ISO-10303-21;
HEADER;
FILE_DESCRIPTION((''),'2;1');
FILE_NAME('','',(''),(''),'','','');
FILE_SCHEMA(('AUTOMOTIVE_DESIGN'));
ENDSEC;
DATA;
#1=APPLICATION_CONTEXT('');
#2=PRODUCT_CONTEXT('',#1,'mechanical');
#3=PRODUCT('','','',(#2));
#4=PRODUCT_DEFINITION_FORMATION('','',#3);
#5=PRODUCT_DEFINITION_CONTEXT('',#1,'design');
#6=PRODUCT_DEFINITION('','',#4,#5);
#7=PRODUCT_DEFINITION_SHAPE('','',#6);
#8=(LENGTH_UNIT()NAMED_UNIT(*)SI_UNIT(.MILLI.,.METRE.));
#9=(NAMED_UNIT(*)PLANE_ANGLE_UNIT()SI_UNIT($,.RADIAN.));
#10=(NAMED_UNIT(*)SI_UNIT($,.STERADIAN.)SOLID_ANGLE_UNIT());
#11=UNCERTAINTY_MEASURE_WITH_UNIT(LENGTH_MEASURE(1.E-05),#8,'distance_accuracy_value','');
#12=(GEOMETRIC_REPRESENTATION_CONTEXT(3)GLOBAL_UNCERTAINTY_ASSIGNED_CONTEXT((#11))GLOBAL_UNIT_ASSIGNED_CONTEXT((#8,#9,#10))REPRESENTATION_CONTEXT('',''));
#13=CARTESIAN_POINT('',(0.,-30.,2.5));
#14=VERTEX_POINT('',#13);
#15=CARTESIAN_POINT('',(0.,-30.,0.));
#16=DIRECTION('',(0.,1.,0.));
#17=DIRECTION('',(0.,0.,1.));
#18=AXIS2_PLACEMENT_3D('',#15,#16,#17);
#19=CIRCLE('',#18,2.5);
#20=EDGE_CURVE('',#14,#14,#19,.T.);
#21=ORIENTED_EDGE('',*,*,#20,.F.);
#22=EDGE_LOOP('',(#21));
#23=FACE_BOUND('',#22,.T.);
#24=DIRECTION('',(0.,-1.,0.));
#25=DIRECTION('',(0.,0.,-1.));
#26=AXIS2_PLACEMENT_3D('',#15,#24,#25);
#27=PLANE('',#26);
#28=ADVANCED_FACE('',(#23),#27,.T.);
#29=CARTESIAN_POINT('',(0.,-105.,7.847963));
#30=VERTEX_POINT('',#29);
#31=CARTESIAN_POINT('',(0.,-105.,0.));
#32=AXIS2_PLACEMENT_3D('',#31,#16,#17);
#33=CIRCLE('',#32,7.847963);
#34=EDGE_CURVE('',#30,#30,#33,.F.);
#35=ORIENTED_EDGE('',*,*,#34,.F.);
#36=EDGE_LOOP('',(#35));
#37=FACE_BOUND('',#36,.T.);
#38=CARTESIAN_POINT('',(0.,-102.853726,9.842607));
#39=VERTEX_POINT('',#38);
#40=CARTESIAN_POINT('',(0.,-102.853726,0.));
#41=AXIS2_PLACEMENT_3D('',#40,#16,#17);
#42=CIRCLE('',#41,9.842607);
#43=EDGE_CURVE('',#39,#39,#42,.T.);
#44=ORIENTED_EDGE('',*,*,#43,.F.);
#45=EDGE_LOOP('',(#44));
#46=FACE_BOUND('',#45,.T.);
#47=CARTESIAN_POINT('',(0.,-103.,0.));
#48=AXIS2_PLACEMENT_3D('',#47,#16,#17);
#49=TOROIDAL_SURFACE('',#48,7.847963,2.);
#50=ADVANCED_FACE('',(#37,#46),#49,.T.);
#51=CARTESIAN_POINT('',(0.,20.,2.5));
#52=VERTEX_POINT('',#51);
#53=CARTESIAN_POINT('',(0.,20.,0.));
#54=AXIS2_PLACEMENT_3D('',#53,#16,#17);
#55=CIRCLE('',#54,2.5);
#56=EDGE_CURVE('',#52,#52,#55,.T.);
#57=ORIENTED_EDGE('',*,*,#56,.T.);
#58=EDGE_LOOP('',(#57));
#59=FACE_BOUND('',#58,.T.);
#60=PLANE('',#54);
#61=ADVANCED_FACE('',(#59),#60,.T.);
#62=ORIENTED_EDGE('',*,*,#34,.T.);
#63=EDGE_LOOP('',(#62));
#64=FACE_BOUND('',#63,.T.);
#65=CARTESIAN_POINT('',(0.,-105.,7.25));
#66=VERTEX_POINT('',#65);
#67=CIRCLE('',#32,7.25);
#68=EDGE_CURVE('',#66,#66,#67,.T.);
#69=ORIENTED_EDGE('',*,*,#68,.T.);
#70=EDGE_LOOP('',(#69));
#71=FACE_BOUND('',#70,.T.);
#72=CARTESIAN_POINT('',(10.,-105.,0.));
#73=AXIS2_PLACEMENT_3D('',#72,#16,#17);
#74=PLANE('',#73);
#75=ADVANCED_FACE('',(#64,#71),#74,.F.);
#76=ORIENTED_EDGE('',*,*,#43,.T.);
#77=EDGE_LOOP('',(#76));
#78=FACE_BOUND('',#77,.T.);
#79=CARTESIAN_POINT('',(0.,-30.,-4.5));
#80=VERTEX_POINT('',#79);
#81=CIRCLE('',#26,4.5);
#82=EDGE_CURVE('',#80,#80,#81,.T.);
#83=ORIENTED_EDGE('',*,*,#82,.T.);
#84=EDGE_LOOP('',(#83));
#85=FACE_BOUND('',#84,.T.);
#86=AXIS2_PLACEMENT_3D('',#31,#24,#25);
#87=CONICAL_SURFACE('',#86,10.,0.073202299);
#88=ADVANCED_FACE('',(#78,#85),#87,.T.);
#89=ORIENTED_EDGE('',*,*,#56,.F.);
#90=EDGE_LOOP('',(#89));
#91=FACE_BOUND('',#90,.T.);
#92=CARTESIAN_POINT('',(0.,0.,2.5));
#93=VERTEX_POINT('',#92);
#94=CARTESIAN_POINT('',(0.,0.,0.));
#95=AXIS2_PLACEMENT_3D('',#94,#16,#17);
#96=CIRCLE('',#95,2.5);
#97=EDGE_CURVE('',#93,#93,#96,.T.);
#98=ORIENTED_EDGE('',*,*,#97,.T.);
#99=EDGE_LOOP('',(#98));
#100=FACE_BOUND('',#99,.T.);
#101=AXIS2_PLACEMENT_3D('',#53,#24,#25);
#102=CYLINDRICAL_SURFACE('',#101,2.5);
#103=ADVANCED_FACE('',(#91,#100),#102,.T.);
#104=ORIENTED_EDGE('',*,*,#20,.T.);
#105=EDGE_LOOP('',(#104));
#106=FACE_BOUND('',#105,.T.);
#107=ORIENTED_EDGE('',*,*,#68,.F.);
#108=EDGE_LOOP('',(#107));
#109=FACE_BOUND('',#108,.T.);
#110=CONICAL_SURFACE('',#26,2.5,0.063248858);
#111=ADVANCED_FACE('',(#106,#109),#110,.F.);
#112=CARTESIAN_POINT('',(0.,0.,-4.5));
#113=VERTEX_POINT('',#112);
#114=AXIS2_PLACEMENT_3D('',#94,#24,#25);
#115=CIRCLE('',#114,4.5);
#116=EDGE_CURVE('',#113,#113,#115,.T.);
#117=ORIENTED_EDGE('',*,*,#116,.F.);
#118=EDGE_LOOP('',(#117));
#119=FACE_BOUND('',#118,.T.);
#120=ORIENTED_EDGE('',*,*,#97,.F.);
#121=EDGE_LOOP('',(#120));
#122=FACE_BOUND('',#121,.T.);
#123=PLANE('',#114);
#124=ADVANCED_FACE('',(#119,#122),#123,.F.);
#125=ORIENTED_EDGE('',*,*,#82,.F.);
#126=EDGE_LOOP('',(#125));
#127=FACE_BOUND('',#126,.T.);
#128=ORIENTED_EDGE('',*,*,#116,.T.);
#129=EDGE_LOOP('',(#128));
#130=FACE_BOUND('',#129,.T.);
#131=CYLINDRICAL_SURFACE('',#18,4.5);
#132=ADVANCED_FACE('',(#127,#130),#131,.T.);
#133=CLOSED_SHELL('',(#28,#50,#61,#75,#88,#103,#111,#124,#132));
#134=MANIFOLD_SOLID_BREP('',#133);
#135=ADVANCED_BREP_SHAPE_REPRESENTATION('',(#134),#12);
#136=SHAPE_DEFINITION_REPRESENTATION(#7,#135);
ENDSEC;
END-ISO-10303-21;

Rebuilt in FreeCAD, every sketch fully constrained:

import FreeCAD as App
import Part
import Sketcher
from FreeCAD import Vector
Q = App.Units.Quantity


def edges_at(feature, points):
    """Names of the edges that pass closest to the given points."""
    edges = feature.Shape.Edges
    near = lambda p: min(range(len(edges)), key=lambda i: edges[i].distToShape(Part.Vertex(*p))[0])
    return sorted({f"Edge{near(p) + 1}" for p in points})


def add_polygon(sketch, points):
    """Adds a closed chain of lines whose ends are joined by coincident constraints."""
    first, n = sketch.GeometryCount, len(points)
    for a, b in zip(points, points[1:] + points[:1]):
        sketch.addGeometry(Part.LineSegment(App.Vector(*a, 0), App.Vector(*b, 0)), False)
    for i in range(n):
        sketch.addConstraint(Sketcher.Constraint("Coincident", first + i, 2, first + (i + 1) % n, 1))

doc = App.newDocument("Part")
body = doc.addObject("PartDesign::Body", "Body")

# Sketch on XZ plane
sketch1 = body.newObject("Sketcher::SketchObject", "Sketch")
sketch1.AttachmentSupport = (doc.getObject("XZ_Plane"), [""])
sketch1.MapMode = "FlatFace"
sketch1.addGeometry(Part.Circle(Vector(0, 0, 0), Vector(0, 0, 1), 2.5), False)
sketch1.addConstraint([
    Sketcher.Constraint("Coincident", 0, 3, -1, 1),
    Sketcher.Constraint("Diameter", 0, Q("5 mm")),
])
pad1 = body.newObject("PartDesign::Pad", "Pad")
pad1.Profile = sketch1
pad1.Length = 20
pad1.Reversed = True

# Sketch on XZ plane
sketch2 = body.newObject("Sketcher::SketchObject", "Sketch001")
sketch2.AttachmentSupport = (doc.getObject("XZ_Plane"), [""])
sketch2.MapMode = "FlatFace"
sketch2.addGeometry(Part.Circle(Vector(0, 0, 0), Vector(0, 0, 1), 4.5), False)
sketch2.addConstraint([
    Sketcher.Constraint("Coincident", 0, 3, -1, 1),
    Sketcher.Constraint("Diameter", 0, Q("9 mm")),
])
pad2 = body.newObject("PartDesign::Pad", "Pad001")
pad2.Profile = sketch2
pad2.Length = 30

# Sketch on XY plane
sketch3 = body.newObject("Sketcher::SketchObject", "Sketch002")
sketch3.AttachmentSupport = (doc.getObject("XY_Plane"), [""])
sketch3.MapMode = "FlatFace"
add_polygon(sketch3, [(10, -105), (4.5, -30), (2.5, -30), (7.2, -105)])  # lines 0-3
sketch3.addConstraint([
    Sketcher.Constraint("Horizontal", 1),
    Sketcher.Constraint("Horizontal", 3),
    Sketcher.Constraint("DistanceX", 1, 2, 1, 1, Q("2 mm")),
    Sketcher.Constraint("DistanceY", 0, 2, -1, 1, Q("30 mm")),
    Sketcher.Constraint("DistanceY", 2, 2, -1, 1, Q("105 mm")),
    Sketcher.Constraint("DistanceX", -1, 1, 3, 2, Q("10 mm")),
    Sketcher.Constraint("DistanceX", 3, 1, 3, 2, Q("2.75 mm")),
    Sketcher.Constraint("DistanceX", -1, 1, 0, 2, Q("4.5 mm")),
])
revolution = body.newObject("PartDesign::Revolution", "Revolution")
revolution.Profile = sketch3
revolution.ReferenceAxis = (sketch3, ["V_Axis"])
revolution.Angle = 360
doc.recompute()

fillet = body.newObject("PartDesign::Fillet", "Fillet")
fillet.Base = (revolution, edges_at(revolution, [(0, -105, 10)]))
fillet.Radius = 2

doc.recompute()
